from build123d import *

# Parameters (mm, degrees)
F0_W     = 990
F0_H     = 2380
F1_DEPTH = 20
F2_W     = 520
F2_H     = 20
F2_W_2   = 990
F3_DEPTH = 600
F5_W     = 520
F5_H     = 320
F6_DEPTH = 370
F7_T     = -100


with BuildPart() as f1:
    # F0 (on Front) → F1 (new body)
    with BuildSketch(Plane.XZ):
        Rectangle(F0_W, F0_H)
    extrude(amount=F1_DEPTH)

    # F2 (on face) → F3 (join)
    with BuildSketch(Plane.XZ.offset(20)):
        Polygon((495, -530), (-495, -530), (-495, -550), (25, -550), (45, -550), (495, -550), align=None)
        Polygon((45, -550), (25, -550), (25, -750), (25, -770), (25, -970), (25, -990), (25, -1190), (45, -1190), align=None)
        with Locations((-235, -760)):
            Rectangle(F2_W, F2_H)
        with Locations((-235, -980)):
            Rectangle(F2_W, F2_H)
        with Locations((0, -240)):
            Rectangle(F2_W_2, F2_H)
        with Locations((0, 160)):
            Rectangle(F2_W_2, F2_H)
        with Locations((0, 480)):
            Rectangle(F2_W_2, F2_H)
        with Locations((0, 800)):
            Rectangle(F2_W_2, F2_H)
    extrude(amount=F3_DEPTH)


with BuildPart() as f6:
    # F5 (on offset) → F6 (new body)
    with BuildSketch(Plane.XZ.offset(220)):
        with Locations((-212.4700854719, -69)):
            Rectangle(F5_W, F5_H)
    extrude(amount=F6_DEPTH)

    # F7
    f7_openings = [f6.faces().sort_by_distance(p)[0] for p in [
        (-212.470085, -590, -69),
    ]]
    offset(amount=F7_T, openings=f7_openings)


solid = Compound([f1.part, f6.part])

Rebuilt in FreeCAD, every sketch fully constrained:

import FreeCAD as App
import Part
import Sketcher
Q = App.Units.Quantity


def faces_at(feature, points):
    """Names of the faces that lie closest to the given points."""
    faces = feature.Shape.Faces
    near = lambda p: min(range(len(faces)), key=lambda i: faces[i].distToShape(Part.Vertex(*p))[0])
    return sorted({f"Face{near(p) + 1}" for p in points})


def add_polygon(sketch, points):
    """Adds a closed chain of lines whose ends are joined by coincident constraints."""
    first, n = sketch.GeometryCount, len(points)
    for a, b in zip(points, points[1:] + points[:1]):
        sketch.addGeometry(Part.LineSegment(App.Vector(*a, 0), App.Vector(*b, 0)), False)
    for i in range(n):
        sketch.addConstraint(Sketcher.Constraint("Coincident", first + i, 2, first + (i + 1) % n, 1))

doc = App.newDocument("Part")
body = doc.addObject("PartDesign::Body", "Body")

# Sketch on XZ plane
sketch1 = body.newObject("Sketcher::SketchObject", "Sketch")
sketch1.AttachmentSupport = (doc.getObject("XZ_Plane"), [""])
sketch1.MapMode = "FlatFace"
add_polygon(sketch1, [(-495, 1190), (-495, -1190), (495, -1190), (495, 1190)])  # lines 0-3
sketch1.addConstraint([
    Sketcher.Constraint("Vertical", 0),
    Sketcher.Constraint("Horizontal", 1),
    Sketcher.Constraint("Vertical", 2),
    Sketcher.Constraint("Horizontal", 3),
    Sketcher.Constraint("Symmetric", 0, 2, 2, 2, -1, 1),
    Sketcher.Constraint("DistanceX", 1, 1, 1, 2, Q("990 mm")),
    Sketcher.Constraint("DistanceY", 0, 2, 0, 1, Q("2380 mm")),
])
pad1 = body.newObject("PartDesign::Pad", "Pad")
pad1.Profile = sketch1
pad1.Length = 20

# Sketch on XZ plane
sketch2 = body.newObject("Sketcher::SketchObject", "Sketch001")
sketch2.AttachmentSupport = (doc.getObject("XZ_Plane"), [""])
sketch2.MapMode = "FlatFace"
sketch2.AttachmentOffset = App.Placement(App.Vector(0, 0, 20), App.Rotation())
add_polygon(sketch2, [(495, -530), (-495, -530), (-495, -550), (25, -550), (25, -750), (-495, -750), (-495, -770), (25, -770), (25, -970), (-495, -970), (-495, -990), (25, -990), (25, -1190), (45, -1190), (45, -550), (495, -550)])  # lines 0-15
add_polygon(sketch2, [(-495, -230), (-495, -250), (495, -250), (495, -230)])  # lines 16-19
add_polygon(sketch2, [(-495, 170), (-495, 150), (495, 150), (495, 170)])  # lines 20-23
add_polygon(sketch2, [(-495, 490), (-495, 470), (495, 470), (495, 490)])  # lines 24-27
add_polygon(sketch2, [(-495, 810), (-495, 790), (495, 790), (495, 810)])  # lines 28-31
sketch2.addConstraint([
    Sketcher.Constraint("Horizontal", 0),
    Sketcher.Constraint("Vertical", 1),
    Sketcher.Constraint("Horizontal", 2),
    Sketcher.Constraint("Vertical", 3),
    Sketcher.Constraint("Horizontal", 4),
    Sketcher.Constraint("Vertical", 5),
    Sketcher.Constraint("Horizontal", 6),
    Sketcher.Constraint("Vertical", 7),
    Sketcher.Constraint("Horizontal", 8),
    Sketcher.Constraint("Vertical", 9),
    Sketcher.Constraint("Horizontal", 10),
    Sketcher.Constraint("Vertical", 11),
    Sketcher.Constraint("Horizontal", 12),
    Sketcher.Constraint("Vertical", 13),
    Sketcher.Constraint("Horizontal", 14),
    Sketcher.Constraint("Vertical", 15),
    Sketcher.Constraint("Vertical", 16),
    Sketcher.Constraint("Horizontal", 17),
    Sketcher.Constraint("Vertical", 18),
    Sketcher.Constraint("Horizontal", 19),
    Sketcher.Constraint("Vertical", 20),
    Sketcher.Constraint("Horizontal", 21),
    Sketcher.Constraint("Vertical", 22),
    Sketcher.Constraint("Horizontal", 23),
    Sketcher.Constraint("Vertical", 24),
    Sketcher.Constraint("Horizontal", 25),
    Sketcher.Constraint("Vertical", 26),
    Sketcher.Constraint("Horizontal", 27),
    Sketcher.Constraint("Vertical", 28),
    Sketcher.Constraint("Horizontal", 29),
    Sketcher.Constraint("Vertical", 30),
    Sketcher.Constraint("Horizontal", 31),
    Sketcher.Constraint("Symmetric", 1, 2, 14, 2, -2),
    Sketcher.Constraint("Vertical", 1, 2, 4, 2),
    Sketcher.Constraint("Vertical", 3, 2, 6, 2),
    Sketcher.Constraint("Vertical", 5, 2, 8, 2),
    Sketcher.Constraint("Vertical", 7, 2, 10, 2),
    Sketcher.Constraint("Vertical", 9, 2, 16, 2),
    Sketcher.Constraint("Vertical", 15, 2, 17, 2),
    Sketcher.Constraint("Vertical", 19, 2, 20, 2),
    Sketcher.Constraint("Vertical", 18, 2, 21, 2),
    Sketcher.Constraint("Vertical", 23, 2, 24, 2),
    Sketcher.Constraint("Vertical", 22, 2, 25, 2),
    Sketcher.Constraint("Vertical", 27, 2, 28, 2),
    Sketcher.Constraint("Vertical", 26, 2, 29, 2),
    Sketcher.Constraint("Equal", 12, 1),
    Sketcher.Constraint("Equal", 1, 5),
    Sketcher.Constraint("Equal", 3, 7),
    Sketcher.Constraint("Equal", 5, 9),
    Sketcher.Constraint("Equal", 7, 11),
    Sketcher.Constraint("Equal", 15, 16),
    Sketcher.Constraint("Equal", 18, 20),
    Sketcher.Constraint("Equal", 22, 24),
    Sketcher.Constraint("Equal", 26, 28),
    Sketcher.Constraint("DistanceX", 0, 2, 0, 1, Q("990 mm")),
    Sketcher.Constraint("DistanceX", 2, 1, 2, 2, Q("520 mm")),
    Sketcher.Constraint("DistanceX", 12, 1, 12, 2, Q("20 mm")),
    Sketcher.Constraint("DistanceY", 3, 2, 3, 1, Q("200 mm")),
    Sketcher.Constraint("DistanceY", 0, 2, -1, 1, Q("530 mm")),
    Sketcher.Constraint("DistanceY", 16, 2, -1, 1, Q("250 mm")),
    Sketcher.Constraint("DistanceY", -1, 1, 20, 2, Q("150 mm")),
    Sketcher.Constraint("DistanceY", -1, 1, 24, 2, Q("470 mm")),
    Sketcher.Constraint("DistanceY", -1, 1, 28, 2, Q("790 mm")),
])
pad2 = body.newObject("PartDesign::Pad", "Pad001")
pad2.Profile = sketch2
pad2.Length = 600
body2 = doc.addObject("PartDesign::Body", "Body001")

# Sketch on XZ plane
sketch3 = body2.newObject("Sketcher::SketchObject", "Sketch002")
sketch3.AttachmentSupport = (doc.getObject("XZ_Plane001"), [""])
sketch3.MapMode = "FlatFace"
sketch3.AttachmentOffset = App.Placement(App.Vector(0, 0, 220), App.Rotation())
add_polygon(sketch3, [(-472.470085, 91), (-472.470085, -229), (47.529915, -229), (47.529915, 91)])  # lines 0-3
sketch3.addConstraint([
    Sketcher.Constraint("Vertical", 0),
    Sketcher.Constraint("Horizontal", 1),
    Sketcher.Constraint("Vertical", 2),
    Sketcher.Constraint("Horizontal", 3),
    Sketcher.Constraint("DistanceX", 1, 1, 1, 2, Q("520 mm")),
    Sketcher.Constraint("DistanceY", 0, 2, 0, 1, Q("320 mm")),
    Sketcher.Constraint("DistanceY", 0, 2, -1, 1, Q("229 mm")),
    Sketcher.Constraint("DistanceX", 0, 2, -1, 1, Q("472.470085 mm")),
])
pad3 = body2.newObject("PartDesign::Pad", "Pad002")
pad3.Profile = sketch3
pad3.Length = 370
doc.recompute()

thickness = body2.newObject("PartDesign::Thickness", "Thickness")
thickness.Base = (pad3, faces_at(pad3, [(-212.47, -590, -69)]))
thickness.Value = 100
thickness.Reversed = True
thickness.Join = "Arc"

doc.recompute()
